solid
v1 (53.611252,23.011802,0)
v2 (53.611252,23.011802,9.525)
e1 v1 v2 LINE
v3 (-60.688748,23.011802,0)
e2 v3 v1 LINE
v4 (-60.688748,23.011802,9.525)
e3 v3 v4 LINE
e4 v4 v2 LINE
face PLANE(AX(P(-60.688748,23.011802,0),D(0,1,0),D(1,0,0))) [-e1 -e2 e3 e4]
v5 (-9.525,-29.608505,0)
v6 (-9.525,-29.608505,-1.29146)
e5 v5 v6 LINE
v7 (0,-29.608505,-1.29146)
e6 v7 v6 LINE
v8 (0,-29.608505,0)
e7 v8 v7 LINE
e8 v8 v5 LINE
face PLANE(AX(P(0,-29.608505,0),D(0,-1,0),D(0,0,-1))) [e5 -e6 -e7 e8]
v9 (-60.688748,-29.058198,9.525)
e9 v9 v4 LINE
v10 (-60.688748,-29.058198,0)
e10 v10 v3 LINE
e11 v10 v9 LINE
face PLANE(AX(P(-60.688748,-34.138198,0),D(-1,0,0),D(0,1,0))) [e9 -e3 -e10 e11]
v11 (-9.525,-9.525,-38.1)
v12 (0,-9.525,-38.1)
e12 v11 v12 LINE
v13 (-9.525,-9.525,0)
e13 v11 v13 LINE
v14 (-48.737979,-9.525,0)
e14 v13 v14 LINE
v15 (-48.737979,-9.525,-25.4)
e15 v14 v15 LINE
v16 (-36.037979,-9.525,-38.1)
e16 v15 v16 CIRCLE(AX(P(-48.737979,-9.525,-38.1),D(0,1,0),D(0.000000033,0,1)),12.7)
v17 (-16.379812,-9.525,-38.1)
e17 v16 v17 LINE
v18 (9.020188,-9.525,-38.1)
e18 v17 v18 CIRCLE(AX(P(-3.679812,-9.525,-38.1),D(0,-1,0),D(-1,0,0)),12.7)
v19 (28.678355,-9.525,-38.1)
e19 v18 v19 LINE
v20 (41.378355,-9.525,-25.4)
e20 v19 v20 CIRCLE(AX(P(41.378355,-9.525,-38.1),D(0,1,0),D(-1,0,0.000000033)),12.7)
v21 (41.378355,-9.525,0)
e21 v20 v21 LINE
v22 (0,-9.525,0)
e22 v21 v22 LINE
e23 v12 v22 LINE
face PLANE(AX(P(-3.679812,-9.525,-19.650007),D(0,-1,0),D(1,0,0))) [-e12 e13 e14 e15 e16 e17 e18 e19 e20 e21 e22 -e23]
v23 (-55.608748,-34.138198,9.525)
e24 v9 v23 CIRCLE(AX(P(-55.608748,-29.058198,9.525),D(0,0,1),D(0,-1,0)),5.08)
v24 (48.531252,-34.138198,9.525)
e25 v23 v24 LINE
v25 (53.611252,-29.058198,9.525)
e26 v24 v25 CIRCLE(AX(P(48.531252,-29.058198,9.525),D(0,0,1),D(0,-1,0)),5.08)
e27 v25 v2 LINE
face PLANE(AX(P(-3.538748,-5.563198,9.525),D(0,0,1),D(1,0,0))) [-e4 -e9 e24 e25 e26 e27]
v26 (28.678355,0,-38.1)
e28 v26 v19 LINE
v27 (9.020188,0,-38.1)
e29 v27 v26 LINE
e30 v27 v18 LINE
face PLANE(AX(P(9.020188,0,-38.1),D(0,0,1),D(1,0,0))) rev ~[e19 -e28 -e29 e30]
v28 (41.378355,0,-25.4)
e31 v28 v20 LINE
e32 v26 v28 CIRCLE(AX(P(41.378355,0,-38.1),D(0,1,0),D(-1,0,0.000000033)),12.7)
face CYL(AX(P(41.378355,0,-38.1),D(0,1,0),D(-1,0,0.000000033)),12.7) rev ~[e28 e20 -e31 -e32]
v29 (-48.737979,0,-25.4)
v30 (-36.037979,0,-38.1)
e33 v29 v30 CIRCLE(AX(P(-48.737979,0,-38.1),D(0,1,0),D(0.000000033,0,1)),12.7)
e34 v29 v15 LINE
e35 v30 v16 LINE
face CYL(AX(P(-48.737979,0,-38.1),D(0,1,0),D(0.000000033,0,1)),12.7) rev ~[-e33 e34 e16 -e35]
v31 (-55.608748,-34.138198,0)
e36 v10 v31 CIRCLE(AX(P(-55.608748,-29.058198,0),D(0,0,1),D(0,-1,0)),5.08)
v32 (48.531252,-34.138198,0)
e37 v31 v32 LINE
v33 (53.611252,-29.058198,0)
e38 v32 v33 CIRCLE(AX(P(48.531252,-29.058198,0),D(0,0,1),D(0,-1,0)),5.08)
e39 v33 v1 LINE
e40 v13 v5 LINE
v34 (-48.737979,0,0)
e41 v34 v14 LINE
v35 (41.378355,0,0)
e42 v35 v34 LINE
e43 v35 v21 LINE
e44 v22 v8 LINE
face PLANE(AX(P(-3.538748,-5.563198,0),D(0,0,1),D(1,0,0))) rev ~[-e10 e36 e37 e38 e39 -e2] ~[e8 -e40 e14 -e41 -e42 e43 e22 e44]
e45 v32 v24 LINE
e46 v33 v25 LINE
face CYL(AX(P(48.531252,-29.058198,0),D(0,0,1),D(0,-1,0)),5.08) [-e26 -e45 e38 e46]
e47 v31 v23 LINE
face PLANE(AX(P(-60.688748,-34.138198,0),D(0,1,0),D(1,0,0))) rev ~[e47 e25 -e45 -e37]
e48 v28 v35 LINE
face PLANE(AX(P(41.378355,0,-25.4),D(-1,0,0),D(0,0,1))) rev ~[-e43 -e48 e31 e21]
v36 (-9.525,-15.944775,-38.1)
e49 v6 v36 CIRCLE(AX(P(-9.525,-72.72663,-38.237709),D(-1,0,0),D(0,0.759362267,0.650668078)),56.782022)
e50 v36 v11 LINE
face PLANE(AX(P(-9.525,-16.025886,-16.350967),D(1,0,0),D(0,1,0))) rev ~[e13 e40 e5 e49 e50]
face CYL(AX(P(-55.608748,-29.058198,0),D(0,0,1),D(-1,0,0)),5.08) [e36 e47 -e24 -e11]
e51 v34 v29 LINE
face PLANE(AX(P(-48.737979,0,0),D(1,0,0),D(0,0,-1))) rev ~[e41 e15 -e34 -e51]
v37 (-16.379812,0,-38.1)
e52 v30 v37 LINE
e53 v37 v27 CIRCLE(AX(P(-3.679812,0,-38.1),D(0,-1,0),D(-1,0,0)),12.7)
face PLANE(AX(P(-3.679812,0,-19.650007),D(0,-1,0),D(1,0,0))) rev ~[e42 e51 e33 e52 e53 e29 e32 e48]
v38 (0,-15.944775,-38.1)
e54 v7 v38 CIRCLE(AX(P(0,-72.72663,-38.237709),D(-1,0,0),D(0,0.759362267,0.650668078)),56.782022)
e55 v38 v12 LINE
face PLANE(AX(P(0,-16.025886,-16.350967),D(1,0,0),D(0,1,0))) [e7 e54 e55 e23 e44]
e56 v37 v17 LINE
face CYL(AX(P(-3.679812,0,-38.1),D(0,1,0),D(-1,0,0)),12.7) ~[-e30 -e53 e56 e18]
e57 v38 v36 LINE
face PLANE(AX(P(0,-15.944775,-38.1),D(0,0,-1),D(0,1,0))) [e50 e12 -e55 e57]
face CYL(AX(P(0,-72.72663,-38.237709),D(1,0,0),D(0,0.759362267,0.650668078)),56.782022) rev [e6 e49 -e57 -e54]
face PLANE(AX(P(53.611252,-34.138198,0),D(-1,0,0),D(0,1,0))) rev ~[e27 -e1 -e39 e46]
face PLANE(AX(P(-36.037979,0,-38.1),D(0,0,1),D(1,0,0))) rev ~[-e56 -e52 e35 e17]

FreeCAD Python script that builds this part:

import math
import FreeCAD as App
import Part
import Sketcher

V = App.Vector
Q = App.Units.Quantity


def edges_at(feature, points):
    """Names of the edges that pass closest to the given points."""
    edges = feature.Shape.Edges
    near = lambda p: min(range(len(edges)), key=lambda i: edges[i].distToShape(Part.Vertex(*p))[0])
    return sorted({f"Edge{near(p) + 1}" for p in points})

doc = App.newDocument("Part")
body = doc.addObject("PartDesign::Body", "Body")

sketch1 = body.newObject("Sketcher::SketchObject", "Sketch")
sketch1.AttachmentSupport = (doc.getObject("XY_Plane"), [""])
sketch1.MapMode = "FlatFace"
sketch1.addGeometry([
    Part.LineSegment(V(-61, 23, 0), V(-61, -34, 0)),
    Part.LineSegment(V(-61, -34, 0), V(54, -34, 0)),
    Part.LineSegment(V(54, -34, 0), V(54, 23, 0)),
    Part.LineSegment(V(54, 23, 0), V(-61, 23, 0)),
], False)
sketch1.addConstraint([
    Sketcher.Constraint("Coincident", 0, 2, 1, 1),
    Sketcher.Constraint("Coincident", 1, 2, 2, 1),
    Sketcher.Constraint("Coincident", 2, 2, 3, 1),
    Sketcher.Constraint("Coincident", 3, 2, 0, 1),
    Sketcher.Constraint("Vertical", 0),
    Sketcher.Constraint("Horizontal", 1),
    Sketcher.Constraint("Vertical", 2),
    Sketcher.Constraint("Horizontal", 3),
    Sketcher.Constraint("DistanceX", 1, 1, 1, 2, Q("4.5 in")),
    Sketcher.Constraint("DistanceY", 0, 2, 0, 1, Q("2.25 in")),
    Sketcher.Constraint("DistanceY", 0, 2, -1, 1, Q("34.138198 mm")),
    Sketcher.Constraint("DistanceX", 0, 2, -1, 1, Q("60.688748 mm")),
])
pad1 = body.newObject("PartDesign::Pad", "Pad")
pad1.Profile = sketch1
pad1.Length = Q("0.375 in")
doc.recompute()

fillet = body.newObject("PartDesign::Fillet", "Fillet")
fillet.Base = (pad1, edges_at(pad1, [(-60.689, -34.138, 4.763), (53.611, -34.138, 4.763)]))
fillet.Radius = Q("0.2 in")

sketch2 = body.newObject("Sketcher::SketchObject", "Sketch001")
sketch2.AttachmentSupport = (doc.getObject("XZ_Plane"), [""])
sketch2.MapMode = "FlatFace"
sketch2.addGeometry([
    Part.LineSegment(V(41, 0, 0), V(-49, 0, 0)),
    Part.LineSegment(V(-49, 0, 0), V(-49, -25, 0)),
    Part.ArcOfCircle(Part.Circle(V(-49, -38, 0), V(0, 0, 1), 13), math.radians(0), math.radians(90)),
    Part.LineSegment(V(-36, -38, 0), V(-16, -38, 0)),
    Part.ArcOfCircle(Part.Circle(V(-4, -38, 0), V(0, 0, 1), 13), math.radians(180), math.radians(360)),
    Part.LineSegment(V(9, -38, 0), V(29, -38, 0)),
    Part.ArcOfCircle(Part.Circle(V(41, -38, 0), V(0, 0, 1), 13), math.radians(90), math.radians(180)),
    Part.LineSegment(V(41, -25, 0), V(41, 0, 0)),
], False)
sketch2.addConstraint([
    Sketcher.Constraint("Coincident", 0, 2, 1, 1),
    Sketcher.Constraint("Coincident", 1, 2, 2, 2),
    Sketcher.Constraint("Coincident", 2, 1, 3, 1),
    Sketcher.Constraint("Coincident", 3, 2, 4, 1),
    Sketcher.Constraint("Coincident", 4, 2, 5, 1),
    Sketcher.Constraint("Coincident", 5, 2, 6, 2),
    Sketcher.Constraint("Coincident", 6, 1, 7, 1),
    Sketcher.Constraint("Coincident", 7, 2, 0, 1),
    Sketcher.Constraint("Horizontal", 0),
    Sketcher.Constraint("Vertical", 1),
    Sketcher.Constraint("Horizontal", 3),
    Sketcher.Constraint("Horizontal", 5),
    Sketcher.Constraint("Vertical", 7),
    Sketcher.Constraint("Equal", 2, 4),
    Sketcher.Constraint("Equal", 4, 6),
    Sketcher.Constraint("PointOnObject", 0, 2, -1),
    Sketcher.Constraint("Horizontal", 2, 3, 4, 3),
    Sketcher.Constraint("Horizontal", 4, 3, 6, 3),
    Sketcher.Constraint("Horizontal", 6, 3, 2, 1),
    Sketcher.Constraint("Horizontal", 3, 2, 4, 2),
    Sketcher.Constraint("Vertical", 2, 3, 0, 2),
    Sketcher.Constraint("Equal", 3, 5),
    Sketcher.Constraint("Radius", 2, Q("0.5 in")),
    Sketcher.Constraint("DistanceY", 1, 2, 1, 1, Q("1 in")),
    Sketcher.Constraint("DistanceX", 5, 2, 6, 1, Q("0.5 in")),
    Sketcher.Constraint("DistanceX", 0, 2, 0, 1, Q("90.116334 mm")),
    Sketcher.Constraint("DistanceX", 2, 3, -1, 1, Q("48.737979 mm")),
])
pad2 = body.newObject("PartDesign::Pad", "Pad001")
pad2.Profile = sketch2
pad2.Length = Q("0.375 in")

sketch3 = body.newObject("Sketcher::SketchObject", "Sketch002")
sketch3.AttachmentSupport = (doc.getObject("YZ_Plane"), [""])
sketch3.MapMode = "FlatFace"
sketch3.addGeometry([
    Part.LineSegment(V(-9.3, -38.1, 0), V(-9.3, 0, 0)),
    Part.LineSegment(V(-9.3, 0, 0), V(-29.6, 0, 0)),
    Part.LineSegment(V(-29.6, 0, 0), V(-29.6, -1.3, 0)),
    Part.ArcOfCircle(Part.Circle(V(-72.7, -38.2, 0), V(0, 0, 1), 56.8), math.radians(0), math.radians(41)),
    Part.LineSegment(V(-15.9, -38.1, 0), V(-9.3, -38.1, 0)),
], False)
sketch3.addConstraint([
    Sketcher.Constraint("Coincident", 0, 2, 1, 1),
    Sketcher.Constraint("Coincident", 1, 2, 2, 1),
    Sketcher.Constraint("Coincident", 2, 2, 3, 2),
    Sketcher.Constraint("Coincident", 3, 1, 4, 1),
    Sketcher.Constraint("Coincident", 4, 2, 0, 1),
    Sketcher.Constraint("Vertical", 0),
    Sketcher.Constraint("Horizontal", 1),
    Sketcher.Constraint("Vertical", 2),
    Sketcher.Constraint("Horizontal", 4),
    Sketcher.Constraint("PointOnObject", 0, 2, -1),
    Sketcher.Constraint("DistanceX", 1, 2, 1, 1, Q("0.8 in")),
    Sketcher.Constraint("DistanceY", 0, 1, 0, 2, Q("1.5 in")),
    Sketcher.Constraint("Radius", 3, Q("56.782022 mm")),
    Sketcher.Constraint("DistanceX", 4, 1, 4, 2, Q("6.65627 mm")),
    Sketcher.Constraint("DistanceY", 2, 2, 2, 1, Q("1.29146 mm")),
    Sketcher.Constraint("DistanceX", 3, 3, -1, 1, Q("72.72663 mm")),
])
pad3 = body.newObject("PartDesign::Pad", "Pad002")
pad3.Profile = sketch3
pad3.Length = Q("0.375 in")
pad3.Reversed = True

doc.recompute()
